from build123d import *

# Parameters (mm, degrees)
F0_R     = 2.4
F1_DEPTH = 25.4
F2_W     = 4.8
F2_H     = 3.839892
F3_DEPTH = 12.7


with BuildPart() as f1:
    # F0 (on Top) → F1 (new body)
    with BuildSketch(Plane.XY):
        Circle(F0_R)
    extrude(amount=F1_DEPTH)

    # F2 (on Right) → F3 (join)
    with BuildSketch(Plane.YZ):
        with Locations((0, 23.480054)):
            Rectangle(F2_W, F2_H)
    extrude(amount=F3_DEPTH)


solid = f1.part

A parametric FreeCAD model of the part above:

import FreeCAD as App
import Part
import Sketcher
from FreeCAD import Vector
Q = App.Units.Quantity


def add_polygon(sketch, points):
    """Adds a closed chain of lines whose ends are joined by coincident constraints."""
    first, n = sketch.GeometryCount, len(points)
    for a, b in zip(points, points[1:] + points[:1]):
        sketch.addGeometry(Part.LineSegment(App.Vector(*a, 0), App.Vector(*b, 0)), False)
    for i in range(n):
        sketch.addConstraint(Sketcher.Constraint("Coincident", first + i, 2, first + (i + 1) % n, 1))

doc = App.newDocument("Part")
body = doc.addObject("PartDesign::Body", "Body")

# Sketch on XY plane
sketch1 = body.newObject("Sketcher::SketchObject", "Sketch")
sketch1.AttachmentSupport = (doc.getObject("XY_Plane"), [""])
sketch1.MapMode = "FlatFace"
sketch1.addGeometry(Part.Circle(Vector(0, 0, 0), Vector(0, 0, 1), 2.4), False)
sketch1.addConstraint(Sketcher.Constraint("Coincident", 0, 3, -1, 1))
sketch1.addConstraint(Sketcher.Constraint("Diameter", 0, 4.8))
pad1 = body.newObject("PartDesign::Pad", "Pad")
pad1.Profile = sketch1
pad1.Length = Q("1 in")

# Sketch on YZ plane
sketch2 = body.newObject("Sketcher::SketchObject", "Sketch001")
sketch2.AttachmentSupport = (doc.getObject("YZ_Plane"), [""])
sketch2.MapMode = "FlatFace"
add_polygon(sketch2, [(-2.4, 25.4), (-2.4, 21.560108), (2.4, 21.560108), (2.4, 25.4)])  # lines 0-3
sketch2.addConstraint(Sketcher.Constraint("Vertical", 0))
sketch2.addConstraint(Sketcher.Constraint("Horizontal", 1))
sketch2.addConstraint(Sketcher.Constraint("Vertical", 2))
sketch2.addConstraint(Sketcher.Constraint("Horizontal", 3))
sketch2.addConstraint(Sketcher.Constraint("DistanceY", -1, 1, 2, 2, Q("1 in")))
sketch2.addConstraint(Sketcher.Constraint("DistanceX", 1, 1, 1, 2, 4.8))
sketch2.addConstraint(Sketcher.Constraint("DistanceY", 0, 2, 0, 1, 3.839892))
sketch2.addConstraint(Sketcher.Constraint("DistanceX", 0, 2, -1, 1, 2.4))
pad2 = body.newObject("PartDesign::Pad", "Pad001")
pad2.Profile = sketch2
pad2.Length = Q("0.5 in")

doc.recompute()
